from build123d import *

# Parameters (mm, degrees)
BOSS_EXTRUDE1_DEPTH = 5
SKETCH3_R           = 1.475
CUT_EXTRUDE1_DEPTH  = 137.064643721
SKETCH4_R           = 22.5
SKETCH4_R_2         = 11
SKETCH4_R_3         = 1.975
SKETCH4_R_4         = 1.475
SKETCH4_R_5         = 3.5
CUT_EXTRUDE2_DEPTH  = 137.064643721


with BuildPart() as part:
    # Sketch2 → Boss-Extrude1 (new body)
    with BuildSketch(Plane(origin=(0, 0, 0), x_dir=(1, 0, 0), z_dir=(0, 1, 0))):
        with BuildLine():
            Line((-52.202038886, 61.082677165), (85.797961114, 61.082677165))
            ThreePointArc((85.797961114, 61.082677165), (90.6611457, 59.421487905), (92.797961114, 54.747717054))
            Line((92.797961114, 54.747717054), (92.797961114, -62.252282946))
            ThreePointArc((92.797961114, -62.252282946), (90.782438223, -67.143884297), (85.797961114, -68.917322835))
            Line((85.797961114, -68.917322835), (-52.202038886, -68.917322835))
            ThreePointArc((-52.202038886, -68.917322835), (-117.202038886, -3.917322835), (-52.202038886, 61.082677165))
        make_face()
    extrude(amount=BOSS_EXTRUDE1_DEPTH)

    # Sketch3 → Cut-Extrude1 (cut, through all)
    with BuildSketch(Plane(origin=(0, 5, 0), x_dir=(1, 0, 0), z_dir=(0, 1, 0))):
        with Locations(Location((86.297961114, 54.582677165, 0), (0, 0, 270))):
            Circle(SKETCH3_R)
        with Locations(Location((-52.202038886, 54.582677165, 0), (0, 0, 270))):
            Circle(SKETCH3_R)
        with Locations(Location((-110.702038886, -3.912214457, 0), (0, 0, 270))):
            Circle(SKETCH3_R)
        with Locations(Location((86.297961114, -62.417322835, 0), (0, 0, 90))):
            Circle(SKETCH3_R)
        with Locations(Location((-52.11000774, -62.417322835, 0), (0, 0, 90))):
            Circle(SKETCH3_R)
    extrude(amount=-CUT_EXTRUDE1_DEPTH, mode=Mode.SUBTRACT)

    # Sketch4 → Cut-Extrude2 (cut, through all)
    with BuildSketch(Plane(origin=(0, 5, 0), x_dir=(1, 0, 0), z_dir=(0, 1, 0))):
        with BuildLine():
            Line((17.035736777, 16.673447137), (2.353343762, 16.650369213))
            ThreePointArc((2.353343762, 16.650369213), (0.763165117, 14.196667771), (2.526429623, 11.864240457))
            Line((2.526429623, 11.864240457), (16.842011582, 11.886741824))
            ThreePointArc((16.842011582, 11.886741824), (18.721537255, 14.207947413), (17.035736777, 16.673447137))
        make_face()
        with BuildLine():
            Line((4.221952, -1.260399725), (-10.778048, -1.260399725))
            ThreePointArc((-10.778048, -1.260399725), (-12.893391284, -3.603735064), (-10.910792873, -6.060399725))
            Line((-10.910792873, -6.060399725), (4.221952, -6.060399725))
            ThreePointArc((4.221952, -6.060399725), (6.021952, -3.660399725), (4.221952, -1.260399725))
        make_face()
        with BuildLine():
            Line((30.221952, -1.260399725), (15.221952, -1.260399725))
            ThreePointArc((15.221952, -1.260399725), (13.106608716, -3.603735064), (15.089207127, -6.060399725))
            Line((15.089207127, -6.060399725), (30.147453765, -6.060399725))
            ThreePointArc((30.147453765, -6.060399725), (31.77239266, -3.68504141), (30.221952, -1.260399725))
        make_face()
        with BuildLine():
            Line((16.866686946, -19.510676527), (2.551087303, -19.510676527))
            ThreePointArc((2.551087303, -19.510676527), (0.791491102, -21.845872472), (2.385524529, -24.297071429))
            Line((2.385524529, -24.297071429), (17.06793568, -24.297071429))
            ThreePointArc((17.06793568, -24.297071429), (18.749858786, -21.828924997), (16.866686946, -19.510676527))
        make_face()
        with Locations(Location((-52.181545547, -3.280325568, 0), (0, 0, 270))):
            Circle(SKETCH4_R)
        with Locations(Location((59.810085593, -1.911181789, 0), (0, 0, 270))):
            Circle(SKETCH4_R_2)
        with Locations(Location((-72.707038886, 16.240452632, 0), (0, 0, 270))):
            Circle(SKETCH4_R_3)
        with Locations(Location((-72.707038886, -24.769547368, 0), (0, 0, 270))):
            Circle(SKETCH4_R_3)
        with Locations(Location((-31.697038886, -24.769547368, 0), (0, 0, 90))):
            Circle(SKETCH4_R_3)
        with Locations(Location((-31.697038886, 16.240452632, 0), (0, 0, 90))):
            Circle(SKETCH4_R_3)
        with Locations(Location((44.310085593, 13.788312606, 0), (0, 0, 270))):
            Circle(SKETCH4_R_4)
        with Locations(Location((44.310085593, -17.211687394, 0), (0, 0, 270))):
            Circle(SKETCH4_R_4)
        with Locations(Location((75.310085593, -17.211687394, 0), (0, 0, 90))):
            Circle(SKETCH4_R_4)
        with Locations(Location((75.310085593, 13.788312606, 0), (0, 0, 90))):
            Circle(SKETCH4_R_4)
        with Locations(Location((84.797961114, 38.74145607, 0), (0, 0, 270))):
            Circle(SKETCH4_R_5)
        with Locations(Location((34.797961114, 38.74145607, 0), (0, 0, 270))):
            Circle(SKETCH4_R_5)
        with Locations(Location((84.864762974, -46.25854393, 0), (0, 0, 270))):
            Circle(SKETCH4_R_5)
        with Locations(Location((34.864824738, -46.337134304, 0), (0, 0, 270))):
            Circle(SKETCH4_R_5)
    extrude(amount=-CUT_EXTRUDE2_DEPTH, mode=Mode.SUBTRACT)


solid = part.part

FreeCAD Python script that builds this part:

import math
import FreeCAD as App
import Part
import Sketcher

V = App.Vector
Q = App.Units.Quantity

doc = App.newDocument("Part")
body = doc.addObject("PartDesign::Body", "Body")

# Sketch on XZ plane
sketch1 = body.newObject("Sketcher::SketchObject", "Sketch")
sketch1.AttachmentSupport = (doc.getObject("XZ_Plane"), [""])
sketch1.MapMode = "FlatFace"
sketch1.addGeometry([
    Part.LineSegment(V(85.797961, -61.082677, 0), V(-52.202039, -61.082677, 0)),  # 0
    Part.ArcOfCircle(Part.Circle(V(-52.202039, 3.917323, 0), V(0, 0, 1), 65), math.radians(90), math.radians(270)),  # 1
    Part.LineSegment(V(-52.202039, 68.917323, 0), V(85.797961, 68.917323, 0)),  # 2
    Part.ArcOfCircle(Part.Circle(V(86.299593, 62.435748, 0), V(0, 0, 1), 6.500957), math.radians(-1.617174), math.radians(94.425503)),  # 3
    Part.LineSegment(V(92.797961, 62.252283, 0), V(92.797961, -54.747717, 0)),  # 4
    Part.ArcOfCircle(Part.Circle(V(86.299593, -54.602063, 0), V(0, 0, 1), 6.5), math.radians(-94.426156), math.radians(-1.284013)),  # 5
], False)
sketch1.addConstraint([
    Sketcher.Constraint("Coincident", 0, 2, 1, 2),
    Sketcher.Constraint("Coincident", 1, 1, 2, 1),
    Sketcher.Constraint("Coincident", 2, 2, 3, 2),
    Sketcher.Constraint("Coincident", 3, 1, 4, 1),
    Sketcher.Constraint("Coincident", 4, 2, 5, 2),
    Sketcher.Constraint("Coincident", 5, 1, 0, 1),
    Sketcher.Constraint("Horizontal", 0),
    Sketcher.Constraint("Horizontal", 2),
    Sketcher.Constraint("Vertical", 4),
    Sketcher.Constraint("Radius", 1, Q("65 mm")),
    Sketcher.Constraint("Radius", 5, Q("6.5 mm")),
    Sketcher.Constraint("DistanceX", 0, 2, 0, 1, Q("138 mm")),
    Sketcher.Constraint("DistanceX", 2, 1, 2, 2, Q("138 mm")),
    Sketcher.Constraint("DistanceY", 4, 2, 4, 1, Q("117 mm")),
    Sketcher.Constraint("DistanceX", 1, 3, 2, 2, Q("138 mm")),
    Sketcher.Constraint("DistanceX", 0, 2, 2, 2, Q("138 mm")),
    Sketcher.Constraint("DistanceX", 2, 2, 3, 1, Q("7 mm")),
    Sketcher.Constraint("Radius", 3, Q("6.500957 mm")),
    Sketcher.Constraint("DistanceX", 1, 3, -1, 1, Q("52.202039 mm")),
    Sketcher.Constraint("DistanceY", -1, 1, 3, 3, Q("62.435748 mm")),
    Sketcher.Constraint("DistanceY", 3, 1, 2, 2, Q("6.66504 mm")),
])
pad1 = body.newObject("PartDesign::Pad", "Pad")
pad1.Profile = sketch1
pad1.Length = 5
pad1.Reversed = True

# Sketch on XZ plane
sketch2 = body.newObject("Sketcher::SketchObject", "Sketch001")
sketch2.AttachmentSupport = (doc.getObject("XZ_Plane"), [""])
sketch2.MapMode = "FlatFace"
sketch2.AttachmentOffset = App.Placement(V(0, 0, -5), App.Rotation())
sketch2.addGeometry([
    Part.Circle(V(86.3, -54.6, 0), V(0, 0, 1), 1.5),  # 0
    Part.Circle(V(-52.2, -54.6, 0), V(0, 0, 1), 1.5),  # 1
    Part.Circle(V(-110.7, 3.9, 0), V(0, 0, 1), 1.5),  # 2
    Part.Circle(V(86.3, 62.4, 0), V(0, 0, 1), 1.5),  # 3
    Part.Circle(V(-52.1, 62.4, 0), V(0, 0, 1), 1.5),  # 4
], False)
sketch2.addConstraint([
    Sketcher.Constraint("Equal", 0, 1),
    Sketcher.Constraint("Equal", 1, 2),
    Sketcher.Constraint("Equal", 2, 3),
    Sketcher.Constraint("Equal", 3, 4),
    Sketcher.Constraint("Horizontal", 0, 3, 1, 3),
    Sketcher.Constraint("Horizontal", 3, 3, 4, 3),
    Sketcher.Constraint("Vertical", 0, 3, 3, 3),
    Sketcher.Constraint("Diameter", 0, Q("2.95 mm")),
    Sketcher.Constraint("DistanceX", 2, 3, 0, 3, Q("197 mm")),
    Sketcher.Constraint("DistanceY", 0, 3, 3, 3, Q("117 mm")),
    Sketcher.Constraint("DistanceX", 1, 3, 0, 3, Q("138.5 mm")),
    Sketcher.Constraint("DistanceX", -1, 1, 0, 3, Q("86.297961 mm")),
    Sketcher.Constraint("DistanceY", 1, 3, 2, 3, Q("58.494892 mm")),
    Sketcher.Constraint("DistanceX", 2, 3, 4, 3, Q("58.592031 mm")),
    Sketcher.Constraint("DistanceY", 0, 3, -1, 1, Q("54.582677 mm")),
])
pocket1 = body.newObject("PartDesign::Pocket", "Pocket")
pocket1.Profile = sketch2
pocket1.Type = "ThroughAll"
pocket1.Reversed = True

# Sketch on XZ plane
sketch3 = body.newObject("Sketcher::SketchObject", "Sketch002")
sketch3.AttachmentSupport = (doc.getObject("XZ_Plane"), [""])
sketch3.MapMode = "FlatFace"
sketch3.AttachmentOffset = App.Placement(V(0, 0, -5), App.Rotation())
sketch3.addGeometry([
    Part.LineSegment(V(17, -16.7, 0), V(2.4, -16.7, 0)),  # 0
    Part.ArcOfCircle(Part.Circle(V(3.3, -14.3, 0), V(0, 0, 1), 2.5), math.radians(108), math.radians(248)),  # 1
    Part.LineSegment(V(2.5, -11.9, 0), V(16.8, -11.9, 0)),  # 2
    Part.ArcOfCircle(Part.Circle(V(16.2, -14.3, 0), V(0, 0, 1), 2.5), math.radians(-71), math.radians(76)),  # 3
    Part.LineSegment(V(4.2, 1.3, 0), V(-10.8, 1.3, 0)),  # 4
    Part.ArcOfCircle(Part.Circle(V(-10.5, 3.7, 0), V(0, 0, 1), 2.4), math.radians(101), math.radians(263)),  # 5
    Part.LineSegment(V(-10.9, 6.1, 0), V(4.2, 6.1, 0)),  # 6
    Part.ArcOfCircle(Part.Circle(V(3.5, 3.7, 0), V(0, 0, 1), 2.5), math.radians(-74), math.radians(74)),  # 7
    Part.LineSegment(V(30.2, 1.3, 0), V(15.2, 1.3, 0)),  # 8
    Part.ArcOfCircle(Part.Circle(V(15.5, 3.7, 0), V(0, 0, 1), 2.4), math.radians(101), math.radians(263)),  # 9
    Part.LineSegment(V(15.1, 6.1, 0), V(30.1, 6.1, 0)),  # 10
    Part.ArcOfCircle(Part.Circle(V(29.2, 3.6, 0), V(0, 0, 1), 2.6), math.radians(-66), math.radians(68)),  # 11
    Part.LineSegment(V(16.9, 19.5, 0), V(2.6, 19.5, 0)),  # 12
    Part.ArcOfCircle(Part.Circle(V(3.3, 21.9, 0), V(0, 0, 1), 2.5), math.radians(112), math.radians(252)),  # 13
    Part.LineSegment(V(2.4, 24.3, 0), V(17.1, 24.3, 0)),  # 14
    Part.ArcOfCircle(Part.Circle(V(16.3, 21.9, 0), V(0, 0, 1), 2.5), math.radians(-76), math.radians(71)),  # 15
    Part.Circle(V(-52.2, 3.3, 0), V(0, 0, 1), 22.5),  # 16
    Part.Circle(V(59.8, 1.9, 0), V(0, 0, 1), 11),  # 17
    Part.Circle(V(-72.7, -16.2, 0), V(0, 0, 1), 2),  # 18
    Part.Circle(V(-72.7, 24.8, 0), V(0, 0, 1), 2),  # 19
    Part.Circle(V(-31.7, 24.8, 0), V(0, 0, 1), 2),  # 20
    Part.Circle(V(-31.7, -16.2, 0), V(0, 0, 1), 2),  # 21
    Part.Circle(V(44.3, -13.8, 0), V(0, 0, 1), 1.5),  # 22
    Part.Circle(V(44.3, 17.2, 0), V(0, 0, 1), 1.5),  # 23
    Part.Circle(V(75.3, 17.2, 0), V(0, 0, 1), 1.5),  # 24
    Part.Circle(V(75.3, -13.8, 0), V(0, 0, 1), 1.5),  # 25
    Part.Circle(V(84.8, -38.7, 0), V(0, 0, 1), 3.5),  # 26
    Part.Circle(V(34.8, -38.7, 0), V(0, 0, 1), 3.5),  # 27
    Part.Circle(V(84.9, 46.3, 0), V(0, 0, 1), 3.5),  # 28
    Part.Circle(V(34.9, 46.3, 0), V(0, 0, 1), 3.5),  # 29
], False)
sketch3.addConstraint([
    Sketcher.Constraint("Coincident", 0, 2, 1, 2),
    Sketcher.Constraint("Coincident", 1, 1, 2, 1),
    Sketcher.Constraint("Coincident", 2, 2, 3, 2),
    Sketcher.Constraint("Coincident", 3, 1, 0, 1),
    Sketcher.Constraint("Coincident", 4, 2, 5, 2),
    Sketcher.Constraint("Coincident", 5, 1, 6, 1),
    Sketcher.Constraint("Coincident", 6, 2, 7, 2),
    Sketcher.Constraint("Coincident", 7, 1, 4, 1),
    Sketcher.Constraint("Coincident", 8, 2, 9, 2),
    Sketcher.Constraint("Coincident", 9, 1, 10, 1),
    Sketcher.Constraint("Coincident", 10, 2, 11, 2),
    Sketcher.Constraint("Coincident", 11, 1, 8, 1),
    Sketcher.Constraint("Coincident", 12, 2, 13, 2),
    Sketcher.Constraint("Coincident", 13, 1, 14, 1),
    Sketcher.Constraint("Coincident", 14, 2, 15, 2),
    Sketcher.Constraint("Coincident", 15, 1, 12, 1),
    Sketcher.Constraint("Horizontal", 4),
    Sketcher.Constraint("Horizontal", 6),
    Sketcher.Constraint("Horizontal", 8),
    Sketcher.Constraint("Horizontal", 10),
    Sketcher.Constraint("Horizontal", 12),
    Sketcher.Constraint("Horizontal", 14),
    Sketcher.Constraint("Equal", 3, 7),
    Sketcher.Constraint("Equal", 5, 9),
    Sketcher.Constraint("Equal", 1, 13),
    Sketcher.Constraint("Equal", 7, 15),
    Sketcher.Constraint("Equal", 18, 19),
    Sketcher.Constraint("Equal", 19, 20),
    Sketcher.Constraint("Equal", 20, 21),
    Sketcher.Constraint("Equal", 22, 23),
    Sketcher.Constraint("Equal", 23, 24),
    Sketcher.Constraint("Equal", 24, 25),
    Sketcher.Constraint("Equal", 26, 27),
    Sketcher.Constraint("Equal", 27, 28),
    Sketcher.Constraint("Equal", 28, 29),
    Sketcher.Constraint("Parallel", 0, 2),
    Sketcher.Constraint("Horizontal", 5, 3, 9, 3),
    Sketcher.Constraint("Horizontal", 13, 3, 15, 3),
    Sketcher.Constraint("Horizontal", 19, 3, 20, 3),
    Sketcher.Constraint("Horizontal", 18, 3, 21, 3),
    Sketcher.Constraint("Horizontal", 23, 3, 24, 3),
    Sketcher.Constraint("Horizontal", 22, 3, 25, 3),
    Sketcher.Constraint("Horizontal", 26, 3, 27, 3),
    Sketcher.Constraint("Horizontal", 7, 1, 8, 2),
    Sketcher.Constraint("Horizontal", 6, 2, 9, 1),
    Sketcher.Constraint("Vertical", 18, 3, 19, 3),
    Sketcher.Constraint("Vertical", 20, 3, 21, 3),
    Sketcher.Constraint("Vertical", 22, 3, 23, 3),
    Sketcher.Constraint("Vertical", 24, 3, 25, 3),
    Sketcher.Constraint("Vertical", 6, 2, 7, 1),
    Sketcher.Constraint("Equal", 4, 8),
    Sketcher.Constraint("Diameter", 16, Q("45 mm")),
    Sketcher.Constraint("Diameter", 17, Q("22 mm")),
    Sketcher.Constraint("Diameter", 26, Q("7 mm")),
    Sketcher.Constraint("Radius", 3, Q("2.5 mm")),
    Sketcher.Constraint("Diameter", 18, Q("3.95 mm")),
    Sketcher.Constraint("Diameter", 22, Q("2.95 mm")),
    Sketcher.Constraint("DistanceX", 4, 2, 4, 1, Q("15 mm")),
    Sketcher.Constraint("Radius", 5, Q("2.430998 mm")),
    Sketcher.Constraint("DistanceX", 5, 3, 9, 3, Q("26 mm")),
    Sketcher.Constraint("DistanceY", 22, 3, 23, 3, Q("31 mm")),
    Sketcher.Constraint("DistanceX", 23, 3, 24, 3, Q("31 mm")),
    Sketcher.Constraint("DistanceX", 22, 3, 17, 3, Q("15.5 mm")),
    Sketcher.Constraint("DistanceX", 4, 2, 7, 3, Q("14.3 mm")),
    Sketcher.Constraint("Radius", 1, Q("2.54775 mm")),
    Sketcher.Constraint("DistanceY", 18, 3, 19, 3, Q("41.01 mm")),
    Sketcher.Constraint("DistanceX", 19, 3, 20, 3, Q("41.01 mm")),
    Sketcher.Constraint("DistanceX", 12, 2, 12, 1, Q("14.3156 mm")),
    Sketcher.Constraint("Radius", 11, Q("2.608115 mm")),
    Sketcher.Constraint("Distance", 2, Q("14.3156 mm")),
    Sketcher.Constraint("DistanceX", 14, 1, 14, 2, Q("14.682411 mm")),
    Sketcher.Constraint("DistanceY", -1, 1, 7, 3, Q("3.6604 mm")),
    Sketcher.Constraint("DistanceY", 3, 3, 1, 3, Q("0.020299 mm")),
    Sketcher.Constraint("DistanceX", 1, 3, 7, 3, Q("0.212702 mm")),
    Sketcher.Constraint("DistanceY", 18, 3, 13, 3, Q("38.1744 mm")),
    Sketcher.Constraint("DistanceY", 3, 3, 2, 2, Q("2.422302 mm")),
    Sketcher.Constraint("DistanceY", 2, 2, 1, 1, Q("0.022501 mm")),
    Sketcher.Constraint("DistanceX", 8, 2, 10, 2, Q("14.925502 mm")),
    Sketcher.Constraint("Distance", 0, Q("14.682411 mm")),
    Sketcher.Constraint("DistanceX", 6, 1, 6, 2, Q("15.132745 mm")),
    Sketcher.Constraint("DistanceX", -1, 1, 1, 3, Q("3.30925 mm")),
    Sketcher.Constraint("DistanceY", -1, 1, 17, 3, Q("1.911182 mm")),
    Sketcher.Constraint("DistanceX", 18, 3, -1, 1, Q("72.707039 mm")),
    Sketcher.Constraint("DistanceX", -1, 1, 26, 3, Q("84.797961 mm")),
    Sketcher.Constraint("DistanceX", -1, 1, 27, 3, Q("34.797961 mm")),
    Sketcher.Constraint("DistanceY", 0, 2, -1, 1, Q("16.650369 mm")),
    Sketcher.Constraint("DistanceY", -1, 1, 13, 1, Q("24.297071 mm")),
    Sketcher.Constraint("DistanceX", 13, 3, 9, 3, Q("12.19896 mm")),
    Sketcher.Constraint("DistanceY", 9, 3, 13, 3, Q("18.263008 mm")),
    Sketcher.Constraint("DistanceY", 1, 3, 16, 3, Q("17.56907 mm")),
    Sketcher.Constraint("DistanceX", 15, 3, 17, 3, Q("43.55802 mm")),
    Sketcher.Constraint("DistanceY", 22, 3, 11, 3, Q("17.43288 mm")),
    Sketcher.Constraint("DistanceY", 27, 3, 1, 3, Q("24.452712 mm")),
    Sketcher.Constraint("DistanceX", 11, 3, 28, 3, Q("55.700172 mm")),
    Sketcher.Constraint("DistanceX", 29, 3, 23, 3, Q("9.445261 mm")),
    Sketcher.Constraint("DistanceX", 16, 3, -1, 1, Q("52.181546 mm")),
    Sketcher.Constraint("DistanceY", -1, 1, 28, 3, Q("46.258544 mm")),
    Sketcher.Constraint("DistanceY", -1, 1, 29, 3, Q("46.337134 mm")),
])
pocket2 = body.newObject("PartDesign::Pocket", "Pocket001")
pocket2.Profile = sketch3
pocket2.Type = "ThroughAll"
pocket2.Reversed = True

doc.recompute()
